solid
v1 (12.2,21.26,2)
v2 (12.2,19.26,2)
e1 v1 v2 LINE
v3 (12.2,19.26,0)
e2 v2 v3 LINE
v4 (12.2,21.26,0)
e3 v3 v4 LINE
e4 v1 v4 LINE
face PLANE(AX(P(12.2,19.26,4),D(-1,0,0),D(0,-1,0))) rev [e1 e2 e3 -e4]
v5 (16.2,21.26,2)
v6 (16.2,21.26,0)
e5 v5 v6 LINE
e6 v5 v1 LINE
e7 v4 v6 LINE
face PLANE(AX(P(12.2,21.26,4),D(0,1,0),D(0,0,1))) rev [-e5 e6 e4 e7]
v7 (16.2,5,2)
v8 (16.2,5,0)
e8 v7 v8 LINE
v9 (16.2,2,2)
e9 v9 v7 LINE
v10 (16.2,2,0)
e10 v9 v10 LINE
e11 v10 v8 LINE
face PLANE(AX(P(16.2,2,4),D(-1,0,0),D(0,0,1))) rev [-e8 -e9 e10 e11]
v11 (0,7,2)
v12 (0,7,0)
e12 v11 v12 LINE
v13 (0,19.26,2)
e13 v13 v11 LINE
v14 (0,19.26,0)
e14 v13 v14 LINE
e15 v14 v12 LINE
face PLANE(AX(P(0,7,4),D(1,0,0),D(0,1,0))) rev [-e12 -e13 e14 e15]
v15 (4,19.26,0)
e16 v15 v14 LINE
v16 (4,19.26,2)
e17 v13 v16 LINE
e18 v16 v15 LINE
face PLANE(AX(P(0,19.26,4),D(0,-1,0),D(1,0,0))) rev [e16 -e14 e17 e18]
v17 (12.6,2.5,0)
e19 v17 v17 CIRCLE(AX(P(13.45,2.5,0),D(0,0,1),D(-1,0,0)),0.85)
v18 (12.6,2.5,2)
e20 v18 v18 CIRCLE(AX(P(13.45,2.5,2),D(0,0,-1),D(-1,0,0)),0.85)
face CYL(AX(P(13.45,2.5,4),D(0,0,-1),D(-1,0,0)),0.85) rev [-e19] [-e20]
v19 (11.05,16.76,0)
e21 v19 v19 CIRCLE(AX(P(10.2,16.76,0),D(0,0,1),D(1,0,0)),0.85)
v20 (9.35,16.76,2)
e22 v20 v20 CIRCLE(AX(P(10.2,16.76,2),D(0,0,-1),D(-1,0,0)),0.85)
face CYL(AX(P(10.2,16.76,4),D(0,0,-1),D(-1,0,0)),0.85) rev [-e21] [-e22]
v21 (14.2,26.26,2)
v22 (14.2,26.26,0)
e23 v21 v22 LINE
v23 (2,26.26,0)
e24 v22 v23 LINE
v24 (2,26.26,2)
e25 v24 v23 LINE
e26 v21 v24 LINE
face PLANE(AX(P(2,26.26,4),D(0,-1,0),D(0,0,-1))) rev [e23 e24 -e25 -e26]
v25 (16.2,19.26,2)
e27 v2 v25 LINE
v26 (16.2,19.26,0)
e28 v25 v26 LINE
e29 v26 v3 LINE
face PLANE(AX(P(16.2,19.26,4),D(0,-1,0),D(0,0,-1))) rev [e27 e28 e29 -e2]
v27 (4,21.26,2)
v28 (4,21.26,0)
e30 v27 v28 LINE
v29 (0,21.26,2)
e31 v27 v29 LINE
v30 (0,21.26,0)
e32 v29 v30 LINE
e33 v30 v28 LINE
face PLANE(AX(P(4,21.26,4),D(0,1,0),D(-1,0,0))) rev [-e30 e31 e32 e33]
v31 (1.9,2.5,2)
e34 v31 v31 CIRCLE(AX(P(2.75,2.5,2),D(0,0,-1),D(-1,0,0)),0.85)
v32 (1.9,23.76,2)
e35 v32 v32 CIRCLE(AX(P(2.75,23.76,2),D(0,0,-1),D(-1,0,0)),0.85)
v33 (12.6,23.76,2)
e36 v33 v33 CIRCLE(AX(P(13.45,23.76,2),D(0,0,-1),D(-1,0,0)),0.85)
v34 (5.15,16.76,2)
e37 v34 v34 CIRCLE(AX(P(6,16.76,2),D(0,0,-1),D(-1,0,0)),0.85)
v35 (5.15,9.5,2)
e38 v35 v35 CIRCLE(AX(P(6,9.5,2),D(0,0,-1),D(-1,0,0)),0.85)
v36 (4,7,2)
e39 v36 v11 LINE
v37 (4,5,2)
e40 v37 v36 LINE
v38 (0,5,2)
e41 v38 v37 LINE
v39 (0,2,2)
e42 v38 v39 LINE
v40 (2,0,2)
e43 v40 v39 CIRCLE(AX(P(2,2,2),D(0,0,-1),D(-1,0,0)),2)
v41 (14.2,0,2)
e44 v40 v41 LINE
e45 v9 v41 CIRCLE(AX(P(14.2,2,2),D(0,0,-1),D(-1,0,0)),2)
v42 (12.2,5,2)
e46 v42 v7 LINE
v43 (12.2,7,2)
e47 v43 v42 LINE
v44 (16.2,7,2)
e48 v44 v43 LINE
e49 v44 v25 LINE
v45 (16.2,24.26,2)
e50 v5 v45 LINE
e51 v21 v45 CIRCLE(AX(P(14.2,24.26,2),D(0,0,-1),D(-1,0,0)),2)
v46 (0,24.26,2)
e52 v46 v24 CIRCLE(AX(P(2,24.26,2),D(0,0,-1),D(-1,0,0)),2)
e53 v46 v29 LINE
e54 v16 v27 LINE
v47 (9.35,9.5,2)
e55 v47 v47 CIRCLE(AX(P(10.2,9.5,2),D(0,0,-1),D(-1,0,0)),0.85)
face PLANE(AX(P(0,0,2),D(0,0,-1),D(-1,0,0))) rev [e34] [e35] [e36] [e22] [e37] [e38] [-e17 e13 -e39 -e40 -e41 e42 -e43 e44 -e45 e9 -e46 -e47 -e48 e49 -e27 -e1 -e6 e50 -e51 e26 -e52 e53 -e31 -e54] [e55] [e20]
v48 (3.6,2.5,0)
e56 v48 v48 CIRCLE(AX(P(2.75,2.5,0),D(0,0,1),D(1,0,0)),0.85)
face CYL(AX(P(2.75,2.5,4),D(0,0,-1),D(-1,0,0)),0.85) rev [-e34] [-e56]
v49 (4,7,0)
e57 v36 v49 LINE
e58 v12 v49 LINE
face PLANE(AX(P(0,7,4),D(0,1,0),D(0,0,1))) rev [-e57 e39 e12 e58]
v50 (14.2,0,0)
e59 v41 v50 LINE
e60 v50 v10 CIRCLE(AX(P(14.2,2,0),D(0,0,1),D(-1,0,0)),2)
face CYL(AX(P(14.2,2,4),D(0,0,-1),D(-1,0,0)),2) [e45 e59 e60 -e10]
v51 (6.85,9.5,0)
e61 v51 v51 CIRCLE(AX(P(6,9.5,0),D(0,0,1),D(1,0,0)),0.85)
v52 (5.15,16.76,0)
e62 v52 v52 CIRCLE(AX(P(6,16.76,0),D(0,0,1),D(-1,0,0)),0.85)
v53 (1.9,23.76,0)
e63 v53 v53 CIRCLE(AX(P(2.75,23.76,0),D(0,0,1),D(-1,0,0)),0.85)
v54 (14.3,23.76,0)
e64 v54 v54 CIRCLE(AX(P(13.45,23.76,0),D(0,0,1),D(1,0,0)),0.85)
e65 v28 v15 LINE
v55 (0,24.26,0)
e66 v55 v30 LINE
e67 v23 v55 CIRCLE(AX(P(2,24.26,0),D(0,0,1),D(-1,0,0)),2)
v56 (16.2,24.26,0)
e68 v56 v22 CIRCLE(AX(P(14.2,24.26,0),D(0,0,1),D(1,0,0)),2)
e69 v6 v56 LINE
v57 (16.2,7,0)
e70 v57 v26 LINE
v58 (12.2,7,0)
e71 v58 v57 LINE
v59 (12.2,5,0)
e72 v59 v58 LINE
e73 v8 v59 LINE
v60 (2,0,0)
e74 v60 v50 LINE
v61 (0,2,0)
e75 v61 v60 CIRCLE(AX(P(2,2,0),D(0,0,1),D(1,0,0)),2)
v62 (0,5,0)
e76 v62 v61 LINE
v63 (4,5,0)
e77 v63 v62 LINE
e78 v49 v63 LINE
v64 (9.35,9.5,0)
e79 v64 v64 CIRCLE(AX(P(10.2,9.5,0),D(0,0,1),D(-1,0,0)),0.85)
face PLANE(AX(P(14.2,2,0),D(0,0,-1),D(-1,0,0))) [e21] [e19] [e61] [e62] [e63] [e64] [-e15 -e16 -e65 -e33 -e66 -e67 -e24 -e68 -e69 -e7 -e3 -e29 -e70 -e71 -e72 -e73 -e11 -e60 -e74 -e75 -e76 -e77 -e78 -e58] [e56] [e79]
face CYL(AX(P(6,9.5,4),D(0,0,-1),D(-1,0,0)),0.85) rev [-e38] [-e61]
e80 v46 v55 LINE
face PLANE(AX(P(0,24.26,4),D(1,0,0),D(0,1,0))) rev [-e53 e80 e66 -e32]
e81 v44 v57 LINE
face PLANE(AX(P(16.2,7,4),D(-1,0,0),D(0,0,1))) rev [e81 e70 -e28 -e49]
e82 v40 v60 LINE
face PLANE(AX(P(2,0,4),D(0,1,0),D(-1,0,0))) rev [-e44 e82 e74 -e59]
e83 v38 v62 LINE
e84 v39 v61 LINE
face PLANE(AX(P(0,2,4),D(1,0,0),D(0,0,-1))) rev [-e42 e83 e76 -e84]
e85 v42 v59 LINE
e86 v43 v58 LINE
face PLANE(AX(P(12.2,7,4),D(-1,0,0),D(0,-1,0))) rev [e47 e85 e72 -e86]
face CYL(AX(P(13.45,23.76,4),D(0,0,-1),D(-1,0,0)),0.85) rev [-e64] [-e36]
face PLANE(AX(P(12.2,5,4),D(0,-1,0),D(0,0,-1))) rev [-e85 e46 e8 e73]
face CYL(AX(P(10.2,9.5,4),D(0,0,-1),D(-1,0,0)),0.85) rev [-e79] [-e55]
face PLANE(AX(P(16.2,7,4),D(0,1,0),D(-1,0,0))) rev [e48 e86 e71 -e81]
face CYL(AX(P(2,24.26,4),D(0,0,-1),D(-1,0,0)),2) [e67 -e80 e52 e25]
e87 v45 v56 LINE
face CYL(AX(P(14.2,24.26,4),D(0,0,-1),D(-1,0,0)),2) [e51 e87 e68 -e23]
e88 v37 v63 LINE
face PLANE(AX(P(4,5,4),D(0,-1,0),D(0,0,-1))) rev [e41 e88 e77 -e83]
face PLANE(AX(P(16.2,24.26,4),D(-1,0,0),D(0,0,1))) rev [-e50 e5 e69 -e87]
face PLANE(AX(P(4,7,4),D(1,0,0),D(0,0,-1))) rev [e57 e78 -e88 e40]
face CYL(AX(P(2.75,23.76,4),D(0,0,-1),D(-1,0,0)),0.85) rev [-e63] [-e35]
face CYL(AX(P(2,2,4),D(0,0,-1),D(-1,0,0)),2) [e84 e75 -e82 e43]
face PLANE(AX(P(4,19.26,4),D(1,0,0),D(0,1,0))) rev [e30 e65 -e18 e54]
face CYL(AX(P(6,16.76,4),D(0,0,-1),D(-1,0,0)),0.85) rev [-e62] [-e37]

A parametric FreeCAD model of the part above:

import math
import FreeCAD as App
import Part
import Sketcher

V = App.Vector
Q = App.Units.Quantity

doc = App.newDocument("Part")
body = doc.addObject("PartDesign::Body", "Body")

sketch1 = doc.addObject("Sketcher::SketchObject", "Sketch")
body.addObject(sketch1)
sketch1.AttachmentSupport = (doc.XY_Plane, [""])
sketch1.MapMode = "FlatFace"
sketch1.addGeometry([
    Part.LineSegment(V(0, 19.3, 0), V(0, 7, 0)),
    Part.LineSegment(V(0, 7, 0), V(4, 7, 0)),
    Part.LineSegment(V(4, 7, 0), V(4, 5, 0)),
    Part.LineSegment(V(4, 5, 0), V(0, 5, 0)),
    Part.LineSegment(V(0, 5, 0), V(0, 2, 0)),
    Part.ArcOfCircle(Part.Circle(V(2, 2, 0), V(0, 0, 1), 2), math.radians(-180), math.radians(-90)),
    Part.LineSegment(V(2, 0, 0), V(14.2, 0, 0)),
    Part.ArcOfCircle(Part.Circle(V(14.2, 2, 0), V(0, 0, 1), 2), math.radians(-90), math.radians(0)),
    Part.LineSegment(V(16.2, 2, 0), V(16.2, 5, 0)),
    Part.LineSegment(V(16.2, 5, 0), V(12.2, 5, 0)),
    Part.LineSegment(V(12.2, 5, 0), V(12.2, 7, 0)),
    Part.LineSegment(V(12.2, 7, 0), V(16.2, 7, 0)),
    Part.LineSegment(V(16.2, 7, 0), V(16.2, 19.3, 0)),
    Part.LineSegment(V(16.2, 19.3, 0), V(12.2, 19.3, 0)),
    Part.LineSegment(V(12.2, 19.3, 0), V(12.2, 21.3, 0)),
    Part.LineSegment(V(12.2, 21.3, 0), V(16.2, 21.3, 0)),
    Part.LineSegment(V(16.2, 21.3, 0), V(16.2, 24.3, 0)),
    Part.ArcOfCircle(Part.Circle(V(14.2, 24.3, 0), V(0, 0, 1), 2), math.radians(0), math.radians(90)),
    Part.LineSegment(V(14.2, 26.3, 0), V(2, 26.3, 0)),
    Part.ArcOfCircle(Part.Circle(V(2, 24.3, 0), V(0, 0, 1), 2), math.radians(90), math.radians(180)),
    Part.LineSegment(V(0, 24.3, 0), V(0, 21.3, 0)),
    Part.LineSegment(V(0, 21.3, 0), V(4, 21.3, 0)),
    Part.LineSegment(V(4, 21.3, 0), V(4, 19.3, 0)),
    Part.LineSegment(V(4, 19.3, 0), V(0, 19.3, 0)),
    Part.Circle(V(13.4, 2.5, 0), V(0, 0, 1), 0.8),
    Part.Circle(V(10.2, 9.5, 0), V(0, 0, 1), 0.8),
    Part.Circle(V(2.8, 2.5, 0), V(0, 0, 1), 0.8),
    Part.Circle(V(6, 9.5, 0), V(0, 0, 1), 0.8),
    Part.Circle(V(10.2, 16.8, 0), V(0, 0, 1), 0.8),
    Part.Circle(V(13.4, 23.8, 0), V(0, 0, 1), 0.8),
    Part.Circle(V(6, 16.8, 0), V(0, 0, 1), 0.8),
    Part.Circle(V(2.8, 23.8, 0), V(0, 0, 1), 0.8),
], False)
sketch1.addConstraint([
    Sketcher.Constraint("Coincident", 0, 2, 1, 1),
    Sketcher.Constraint("Coincident", 1, 2, 2, 1),
    Sketcher.Constraint("Coincident", 2, 2, 3, 1),
    Sketcher.Constraint("Coincident", 3, 2, 4, 1),
    Sketcher.Constraint("Tangent", 4, 2, 5, 1),
    Sketcher.Constraint("Tangent", 5, 2, 6, 1),
    Sketcher.Constraint("Tangent", 6, 2, 7, 1),
    Sketcher.Constraint("Tangent", 7, 2, 8, 1),
    Sketcher.Constraint("Coincident", 8, 2, 9, 1),
    Sketcher.Constraint("Coincident", 9, 2, 10, 1),
    Sketcher.Constraint("Coincident", 10, 2, 11, 1),
    Sketcher.Constraint("Coincident", 11, 2, 12, 1),
    Sketcher.Constraint("Coincident", 12, 2, 13, 1),
    Sketcher.Constraint("Coincident", 13, 2, 14, 1),
    Sketcher.Constraint("Coincident", 14, 2, 15, 1),
    Sketcher.Constraint("Coincident", 15, 2, 16, 1),
    Sketcher.Constraint("Tangent", 16, 2, 17, 1),
    Sketcher.Constraint("Tangent", 17, 2, 18, 1),
    Sketcher.Constraint("Tangent", 18, 2, 19, 1),
    Sketcher.Constraint("Tangent", 19, 2, 20, 1),
    Sketcher.Constraint("Coincident", 20, 2, 21, 1),
    Sketcher.Constraint("Coincident", 21, 2, 22, 1),
    Sketcher.Constraint("Coincident", 22, 2, 23, 1),
    Sketcher.Constraint("Coincident", 23, 2, 0, 1),
    Sketcher.Constraint("Vertical", 0),
    Sketcher.Constraint("Horizontal", 1),
    Sketcher.Constraint("Vertical", 2),
    Sketcher.Constraint("Horizontal", 3),
    Sketcher.Constraint("Vertical", 4),
    Sketcher.Constraint("Horizontal", 6),
    Sketcher.Constraint("Vertical", 8),
    Sketcher.Constraint("Horizontal", 9),
    Sketcher.Constraint("Vertical", 10),
    Sketcher.Constraint("Horizontal", 11),
    Sketcher.Constraint("Vertical", 12),
    Sketcher.Constraint("Horizontal", 13),
    Sketcher.Constraint("Vertical", 14),
    Sketcher.Constraint("Horizontal", 15),
    Sketcher.Constraint("Vertical", 16),
    Sketcher.Constraint("Horizontal", 18),
    Sketcher.Constraint("Vertical", 20),
    Sketcher.Constraint("Horizontal", 21),
    Sketcher.Constraint("Vertical", 22),
    Sketcher.Constraint("Horizontal", 23),
    Sketcher.Constraint("Equal", 5, 7),
    Sketcher.Constraint("Equal", 7, 17),
    Sketcher.Constraint("Equal", 17, 19),
    Sketcher.Constraint("Equal", 24, 25),
    Sketcher.Constraint("Equal", 25, 26),
    Sketcher.Constraint("Equal", 26, 27),
    Sketcher.Constraint("Equal", 27, 28),
    Sketcher.Constraint("Equal", 28, 29),
    Sketcher.Constraint("Equal", 29, 30),
    Sketcher.Constraint("Equal", 30, 31),
    Sketcher.Constraint("PointOnObject", 0, 2, -2),
    Sketcher.Constraint("PointOnObject", 3, 2, -2),
    Sketcher.Constraint("PointOnObject", 5, 2, -1),
    Sketcher.Constraint("PointOnObject", 19, 2, -2),
    Sketcher.Constraint("Horizontal", 24, 3, 26, 3),
    Sketcher.Constraint("Horizontal", 25, 3, 27, 3),
    Sketcher.Constraint("Horizontal", 28, 3, 30, 3),
    Sketcher.Constraint("Horizontal", 29, 3, 31, 3),
    Sketcher.Constraint("Horizontal", 3, 2, 8, 2),
    Sketcher.Constraint("Horizontal", 1, 2, 10, 2),
    Sketcher.Constraint("Horizontal", 15, 2, 20, 2),
    Sketcher.Constraint("Horizontal", 13, 2, 22, 2),
    Sketcher.Constraint("Vertical", 7, 3, 17, 3),
    Sketcher.Constraint("Vertical", 25, 3, 28, 3),
    Sketcher.Constraint("Vertical", 24, 3, 29, 3),
    Sketcher.Constraint("Vertical", 27, 3, 30, 3),
    Sketcher.Constraint("Vertical", 26, 3, 31, 3),
    Sketcher.Constraint("Vertical", 8, 2, 11, 2),
    Sketcher.Constraint("Vertical", 10, 2, 13, 2),
    Sketcher.Constraint("Vertical", 2, 2, 21, 2),
    Sketcher.Constraint("Equal", 3, 9),
    Sketcher.Constraint("Equal", 10, 14),
    Sketcher.Constraint("Equal", 8, 16),
    Sketcher.Constraint("Radius", 5, Q("2 mm")),
    Sketcher.Constraint("Diameter", 24, Q("1.7 mm")),
    Sketcher.Constraint("DistanceX", 1, 1, 1, 2, Q("4 mm")),
    Sketcher.Constraint("DistanceY", 2, 2, 2, 1, Q("2 mm")),
    Sketcher.Constraint("DistanceY", 4, 2, 4, 1, Q("3 mm")),
    Sketcher.Constraint("DistanceX", 6, 1, 6, 2, Q("12.2 mm")),
    Sketcher.Constraint("DistanceX", -1, 1, 27, 3, Q("6 mm")),
    Sketcher.Constraint("DistanceY", 24, 3, 25, 3, Q("7 mm")),
    Sketcher.Constraint("DistanceX", 25, 3, 7, 3, Q("4 mm")),
    Sketcher.Constraint("DistanceY", 28, 3, 29, 3, Q("7 mm")),
    Sketcher.Constraint("DistanceY", 0, 2, 0, 1, Q("12.26 mm")),
    Sketcher.Constraint("DistanceY", -1, 1, 24, 3, Q("2.5 mm")),
    Sketcher.Constraint("DistanceX", 26, 3, 24, 3, Q("10.7 mm")),
    Sketcher.Constraint("DistanceY", 28, 3, 17, 3, Q("7.5 mm")),
    Sketcher.Constraint("DistanceX", -1, 1, 24, 3, Q("13.45 mm")),
])
pad1 = doc.addObject("PartDesign::Pad", "Pad")
body.addObject(pad1)
pad1.Profile = sketch1
pad1.Length = 4

sketch2 = doc.addObject("Sketcher::SketchObject", "Sketch001")
body.addObject(sketch2)
sketch2.AttachmentSupport = (doc.XY_Plane, [""])
sketch2.MapMode = "FlatFace"
sketch2.AttachmentOffset = App.Placement(V(0, 0, 4), App.Rotation())
sketch2.addGeometry([
    Part.LineSegment(V(0, 26, 0), V(0, 0, 0)),
    Part.LineSegment(V(0, 0, 0), V(16, 0, 0)),
    Part.LineSegment(V(16, 0, 0), V(16, 26, 0)),
    Part.LineSegment(V(16, 26, 0), V(0, 26, 0)),
], False)
sketch2.addConstraint([
    Sketcher.Constraint("Coincident", 0, 2, 1, 1),
    Sketcher.Constraint("Coincident", 1, 2, 2, 1),
    Sketcher.Constraint("Coincident", 2, 2, 3, 1),
    Sketcher.Constraint("Coincident", 3, 2, 0, 1),
    Sketcher.Constraint("Vertical", 0),
    Sketcher.Constraint("Horizontal", 1),
    Sketcher.Constraint("Vertical", 2),
    Sketcher.Constraint("Horizontal", 3),
    Sketcher.Constraint("Coincident", 0, 2, -1, 1),
    Sketcher.Constraint("DistanceX", 1, 1, 1, 2, Q("16.2 mm")),
    Sketcher.Constraint("DistanceY", 0, 2, 0, 1, Q("26.26 mm")),
])
pocket1 = doc.addObject("PartDesign::Pocket", "Pocket")
body.addObject(pocket1)
pocket1.Profile = sketch2
pocket1.Length = 2

doc.recompute()
